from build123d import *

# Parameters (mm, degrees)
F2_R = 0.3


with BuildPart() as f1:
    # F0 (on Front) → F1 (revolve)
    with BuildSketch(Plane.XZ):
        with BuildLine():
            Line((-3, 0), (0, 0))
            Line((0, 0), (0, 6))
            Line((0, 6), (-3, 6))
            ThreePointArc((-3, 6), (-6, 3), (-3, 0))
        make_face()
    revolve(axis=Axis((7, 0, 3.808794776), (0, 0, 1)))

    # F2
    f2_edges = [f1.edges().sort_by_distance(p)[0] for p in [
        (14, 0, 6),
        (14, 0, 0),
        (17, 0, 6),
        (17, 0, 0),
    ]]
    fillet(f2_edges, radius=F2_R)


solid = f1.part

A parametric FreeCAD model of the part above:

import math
import FreeCAD as App
import Part
import Sketcher
from FreeCAD import Vector


def edges_at(feature, points):
    """Names of the edges that pass closest to the given points."""
    edges = feature.Shape.Edges
    near = lambda p: min(range(len(edges)), key=lambda i: edges[i].distToShape(Part.Vertex(*p))[0])
    return sorted({f"Edge{near(p) + 1}" for p in points})

doc = App.newDocument("Part")
body = doc.addObject("PartDesign::Body", "Body")

# Sketch on XZ plane
sketch1 = body.newObject("Sketcher::SketchObject", "Sketch")
sketch1.AttachmentSupport = (doc.getObject("XZ_Plane"), [""])
sketch1.MapMode = "FlatFace"
sketch1.addGeometry(Part.LineSegment(Vector(-3, 0, 0), Vector(0, 0, 0)), False)
sketch1.addGeometry(Part.LineSegment(Vector(0, 0, 0), Vector(0, 6, 0)), False)
sketch1.addGeometry(Part.LineSegment(Vector(0, 6, 0), Vector(-3, 6, 0)), False)
sketch1.addGeometry(Part.ArcOfCircle(Part.Circle(Vector(-3, 3, 0), Vector(0, 0, 1), 3), math.radians(90), math.radians(270)), False)
sketch1.addGeometry(Part.LineSegment(Vector(7, 0, 0), Vector(7, 6, 0)), True)  # axis
sketch1.addConstraint(Sketcher.Constraint("Coincident", 0, 2, 1, 1))
sketch1.addConstraint(Sketcher.Constraint("Coincident", 1, 2, 2, 1))
sketch1.addConstraint(Sketcher.Constraint("Tangent", 2, 2, 3, 1))
sketch1.addConstraint(Sketcher.Constraint("Tangent", 3, 2, 0, 1))
sketch1.addConstraint(Sketcher.Constraint("Horizontal", 0))
sketch1.addConstraint(Sketcher.Constraint("Vertical", 1))
sketch1.addConstraint(Sketcher.Constraint("Horizontal", 2))
sketch1.addConstraint(Sketcher.Constraint("Vertical", 4))
sketch1.addConstraint(Sketcher.Constraint("Coincident", 0, 2, -1, 1))
sketch1.addConstraint(Sketcher.Constraint("PointOnObject", 4, 1, -1))
sketch1.addConstraint(Sketcher.Constraint("Horizontal", 2, 2, 4, 2))
sketch1.addConstraint(Sketcher.Constraint("Radius", 3, 3.0))
sketch1.addConstraint(Sketcher.Constraint("DistanceX", 0, 1, 0, 2, 3.0))
sketch1.addConstraint(Sketcher.Constraint("DistanceX", -1, 1, 4, 1, 7.0))
revolution = body.newObject("PartDesign::Revolution", "Revolution")
revolution.Profile = sketch1
revolution.ReferenceAxis = (sketch1, ["Axis0"])
revolution.Angle = 360
doc.recompute()

fillet = body.newObject("PartDesign::Fillet", "Fillet")
fillet.Base = (revolution, edges_at(revolution, [
    (14, 0, 6),
    (14, 0, 0),
    (17, 0, 6),
    (17, 0, 0),
]))
fillet.Radius = 0.3

doc.recompute()
